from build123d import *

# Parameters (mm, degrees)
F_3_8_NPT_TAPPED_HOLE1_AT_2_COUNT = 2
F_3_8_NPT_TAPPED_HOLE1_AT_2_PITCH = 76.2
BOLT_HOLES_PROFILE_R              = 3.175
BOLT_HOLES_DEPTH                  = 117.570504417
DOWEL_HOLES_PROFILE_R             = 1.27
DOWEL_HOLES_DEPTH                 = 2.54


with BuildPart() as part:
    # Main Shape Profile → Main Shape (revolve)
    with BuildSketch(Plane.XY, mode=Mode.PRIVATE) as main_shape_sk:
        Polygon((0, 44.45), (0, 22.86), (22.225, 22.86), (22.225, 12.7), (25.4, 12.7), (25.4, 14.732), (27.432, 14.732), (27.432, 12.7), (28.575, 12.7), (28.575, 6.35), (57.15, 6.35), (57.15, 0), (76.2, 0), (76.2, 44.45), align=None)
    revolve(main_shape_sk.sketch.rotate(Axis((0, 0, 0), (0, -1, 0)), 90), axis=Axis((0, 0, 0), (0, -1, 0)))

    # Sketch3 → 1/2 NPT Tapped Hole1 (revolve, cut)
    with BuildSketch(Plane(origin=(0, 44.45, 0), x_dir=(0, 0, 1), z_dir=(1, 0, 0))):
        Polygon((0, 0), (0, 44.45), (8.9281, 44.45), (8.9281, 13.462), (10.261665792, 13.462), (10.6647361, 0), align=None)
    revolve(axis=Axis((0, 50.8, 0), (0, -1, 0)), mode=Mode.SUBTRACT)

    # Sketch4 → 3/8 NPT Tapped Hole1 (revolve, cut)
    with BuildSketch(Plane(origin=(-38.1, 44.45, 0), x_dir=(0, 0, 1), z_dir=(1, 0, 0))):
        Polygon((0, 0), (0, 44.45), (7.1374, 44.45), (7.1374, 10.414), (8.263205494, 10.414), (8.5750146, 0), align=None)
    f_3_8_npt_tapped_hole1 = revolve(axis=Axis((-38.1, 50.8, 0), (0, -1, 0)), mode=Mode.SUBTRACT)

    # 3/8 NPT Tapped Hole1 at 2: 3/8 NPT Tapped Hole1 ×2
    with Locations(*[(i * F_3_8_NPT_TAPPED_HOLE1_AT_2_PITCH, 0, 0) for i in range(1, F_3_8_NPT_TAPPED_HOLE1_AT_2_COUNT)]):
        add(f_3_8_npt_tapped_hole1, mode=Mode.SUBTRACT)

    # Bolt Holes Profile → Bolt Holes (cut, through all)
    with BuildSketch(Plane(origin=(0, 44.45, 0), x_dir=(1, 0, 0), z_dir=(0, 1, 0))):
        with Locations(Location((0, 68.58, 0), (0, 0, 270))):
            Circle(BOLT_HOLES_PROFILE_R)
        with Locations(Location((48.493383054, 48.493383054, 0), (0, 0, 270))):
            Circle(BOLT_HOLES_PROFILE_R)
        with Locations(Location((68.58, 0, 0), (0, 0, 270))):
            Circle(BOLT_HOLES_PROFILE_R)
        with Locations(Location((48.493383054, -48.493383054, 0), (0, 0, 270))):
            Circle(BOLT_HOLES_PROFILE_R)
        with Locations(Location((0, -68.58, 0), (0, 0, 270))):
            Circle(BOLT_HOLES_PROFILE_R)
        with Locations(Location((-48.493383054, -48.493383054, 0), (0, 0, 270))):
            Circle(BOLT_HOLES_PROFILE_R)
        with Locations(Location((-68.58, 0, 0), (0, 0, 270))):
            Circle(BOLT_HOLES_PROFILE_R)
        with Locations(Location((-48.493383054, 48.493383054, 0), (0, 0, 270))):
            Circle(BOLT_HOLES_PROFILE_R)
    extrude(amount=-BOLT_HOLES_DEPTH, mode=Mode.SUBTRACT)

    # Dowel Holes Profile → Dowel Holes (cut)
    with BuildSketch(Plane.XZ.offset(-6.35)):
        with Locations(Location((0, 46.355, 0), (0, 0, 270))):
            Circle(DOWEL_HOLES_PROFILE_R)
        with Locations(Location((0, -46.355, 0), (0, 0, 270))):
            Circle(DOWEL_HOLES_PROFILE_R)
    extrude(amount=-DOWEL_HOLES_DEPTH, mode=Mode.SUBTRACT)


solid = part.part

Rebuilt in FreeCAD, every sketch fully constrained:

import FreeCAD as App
import Part
import Sketcher
from FreeCAD import Vector
Q = App.Units.Quantity

doc = App.newDocument("Part")
body = doc.addObject("PartDesign::Body", "Body")

# Sketch on XY plane
sketch1 = body.newObject("Sketcher::SketchObject", "Sketch")
sketch1.AttachmentSupport = (doc.getObject("XY_Plane"), [""])
sketch1.MapMode = "FlatFace"
sketch1.addGeometry([
    Part.LineSegment(Vector(0, 44.5, 0), Vector(0, 22.9, 0)),  # 0
    Part.LineSegment(Vector(0, 22.9, 0), Vector(22.2, 22.9, 0)),  # 1
    Part.LineSegment(Vector(22.2, 22.9, 0), Vector(22.2, 12.7, 0)),  # 2
    Part.LineSegment(Vector(22.2, 12.7, 0), Vector(25.4, 12.7, 0)),  # 3
    Part.LineSegment(Vector(25.4, 12.7, 0), Vector(25.4, 14.7, 0)),  # 4
    Part.LineSegment(Vector(25.4, 14.7, 0), Vector(27.4, 14.7, 0)),  # 5
    Part.LineSegment(Vector(27.4, 14.7, 0), Vector(27.4, 12.7, 0)),  # 6
    Part.LineSegment(Vector(27.4, 12.7, 0), Vector(28.6, 12.7, 0)),  # 7
    Part.LineSegment(Vector(28.6, 12.7, 0), Vector(28.6, 6.3, 0)),  # 8
    Part.LineSegment(Vector(28.6, 6.3, 0), Vector(57.1, 6.3, 0)),  # 9
    Part.LineSegment(Vector(57.1, 6.3, 0), Vector(57.1, 0, 0)),  # 10
    Part.LineSegment(Vector(57.1, 0, 0), Vector(76.2, 0, 0)),  # 11
    Part.LineSegment(Vector(76.2, 0, 0), Vector(76.2, 44.5, 0)),  # 12
    Part.LineSegment(Vector(76.2, 44.5, 0), Vector(0, 44.5, 0)),  # 13
], False)
sketch1.addConstraint([
    Sketcher.Constraint("Coincident", 0, 2, 1, 1),
    Sketcher.Constraint("Coincident", 1, 2, 2, 1),
    Sketcher.Constraint("Coincident", 2, 2, 3, 1),
    Sketcher.Constraint("Coincident", 3, 2, 4, 1),
    Sketcher.Constraint("Coincident", 4, 2, 5, 1),
    Sketcher.Constraint("Coincident", 5, 2, 6, 1),
    Sketcher.Constraint("Coincident", 6, 2, 7, 1),
    Sketcher.Constraint("Coincident", 7, 2, 8, 1),
    Sketcher.Constraint("Coincident", 8, 2, 9, 1),
    Sketcher.Constraint("Coincident", 9, 2, 10, 1),
    Sketcher.Constraint("Coincident", 10, 2, 11, 1),
    Sketcher.Constraint("Coincident", 11, 2, 12, 1),
    Sketcher.Constraint("Coincident", 12, 2, 13, 1),
    Sketcher.Constraint("Coincident", 13, 2, 0, 1),
    Sketcher.Constraint("Vertical", 0),
    Sketcher.Constraint("Horizontal", 1),
    Sketcher.Constraint("Vertical", 2),
    Sketcher.Constraint("Horizontal", 3),
    Sketcher.Constraint("Vertical", 4),
    Sketcher.Constraint("Horizontal", 5),
    Sketcher.Constraint("Vertical", 6),
    Sketcher.Constraint("Horizontal", 7),
    Sketcher.Constraint("Vertical", 8),
    Sketcher.Constraint("Horizontal", 9),
    Sketcher.Constraint("Vertical", 10),
    Sketcher.Constraint("Horizontal", 11),
    Sketcher.Constraint("Vertical", 12),
    Sketcher.Constraint("Horizontal", 13),
    Sketcher.Constraint("PointOnObject", 0, 2, -2),
    Sketcher.Constraint("PointOnObject", 10, 2, -1),
    Sketcher.Constraint("Horizontal", 3, 2, 6, 2),
    Sketcher.Constraint("Equal", 5, 4),
    Sketcher.Constraint("Equal", 8, 10),
    Sketcher.Constraint("DistanceX", 13, 2, 13, 1, Q("3 in")),
    Sketcher.Constraint("DistanceY", 2, 2, 2, 1, Q("0.4 in")),
    Sketcher.Constraint("DistanceX", -1, 1, 3, 2, Q("1 in")),
    Sketcher.Constraint("DistanceX", 5, 1, 5, 2, Q("0.08 in")),
    Sketcher.Constraint("DistanceX", 11, 1, 11, 2, Q("0.75 in")),
    Sketcher.Constraint("DistanceY", 0, 2, 0, 1, Q("0.85 in")),
    Sketcher.Constraint("DistanceY", 8, 2, 8, 1, Q("0.25 in")),
    Sketcher.Constraint("DistanceX", 1, 1, 1, 2, Q("0.875 in")),
    Sketcher.Constraint("DistanceX", 7, 1, 7, 2, Q("0.045 in")),
])
revolution = body.newObject("PartDesign::Revolution", "Revolution")
revolution.Profile = sketch1
revolution.ReferenceAxis = (sketch1, ["V_Axis"])
revolution.Angle = 360

# Sketch on YZ plane
sketch2 = body.newObject("Sketcher::SketchObject", "Sketch001")
sketch2.AttachmentSupport = (doc.getObject("YZ_Plane"), [""])
sketch2.MapMode = "FlatFace"
sketch2.addGeometry([
    Part.LineSegment(Vector(0, 0, 0), Vector(44.5, 0, 0)),  # 0
    Part.LineSegment(Vector(44.5, 0, 0), Vector(44.5, 10.7, 0)),  # 1
    Part.LineSegment(Vector(44.5, 10.7, 0), Vector(31, 10.3, 0)),  # 2
    Part.LineSegment(Vector(31, 10.3, 0), Vector(31, 8.9, 0)),  # 3
    Part.LineSegment(Vector(31, 8.9, 0), Vector(0, 8.9, 0)),  # 4
    Part.LineSegment(Vector(0, 8.9, 0), Vector(0, 0, 0)),  # 5
], False)
sketch2.addConstraint([
    Sketcher.Constraint("Coincident", 0, 2, 1, 1),
    Sketcher.Constraint("Coincident", 1, 2, 2, 1),
    Sketcher.Constraint("Coincident", 2, 2, 3, 1),
    Sketcher.Constraint("Coincident", 3, 2, 4, 1),
    Sketcher.Constraint("Coincident", 4, 2, 5, 1),
    Sketcher.Constraint("Coincident", 5, 2, 0, 1),
    Sketcher.Constraint("Horizontal", 0),
    Sketcher.Constraint("Vertical", 1),
    Sketcher.Constraint("Vertical", 3),
    Sketcher.Constraint("Horizontal", 4),
    Sketcher.Constraint("Vertical", 5),
    Sketcher.Constraint("Coincident", 5, 2, -1, 1),
    Sketcher.Constraint("DistanceX", 0, 1, 0, 2, Q("1.75 in")),
    Sketcher.Constraint("DistanceX", 4, 2, 4, 1, Q("1.22 in")),
    Sketcher.Constraint("DistanceY", 5, 2, 5, 1, Q("0.3515 in")),
    Sketcher.Constraint("DistanceY", 1, 1, 1, 2, 10.664736),
    Sketcher.Constraint("DistanceY", 3, 2, 3, 1, 1.333566),
])
groove = body.newObject("PartDesign::Groove", "Groove")
groove.Profile = sketch2
groove.ReferenceAxis = (sketch2, ["H_Axis"])
groove.Angle = 360

# Sketch on YZ plane
sketch3 = body.newObject("Sketcher::SketchObject", "Sketch002")
sketch3.AttachmentSupport = (doc.getObject("YZ_Plane"), [""])
sketch3.MapMode = "FlatFace"
sketch3.AttachmentOffset = App.Placement(Vector(0, 0, -1.5 * 25.4), App.Rotation())
sketch3.addGeometry([
    Part.LineSegment(Vector(0, 0, 0), Vector(44.5, 0, 0)),  # 0
    Part.LineSegment(Vector(44.5, 0, 0), Vector(44.5, 8.6, 0)),  # 1
    Part.LineSegment(Vector(44.5, 8.6, 0), Vector(34, 8.3, 0)),  # 2
    Part.LineSegment(Vector(34, 8.3, 0), Vector(34, 7.1, 0)),  # 3
    Part.LineSegment(Vector(34, 7.1, 0), Vector(0, 7.1, 0)),  # 4
    Part.LineSegment(Vector(0, 7.1, 0), Vector(0, 0, 0)),  # 5
], False)
sketch3.addConstraint([
    Sketcher.Constraint("Coincident", 0, 2, 1, 1),
    Sketcher.Constraint("Coincident", 1, 2, 2, 1),
    Sketcher.Constraint("Coincident", 2, 2, 3, 1),
    Sketcher.Constraint("Coincident", 3, 2, 4, 1),
    Sketcher.Constraint("Coincident", 4, 2, 5, 1),
    Sketcher.Constraint("Coincident", 5, 2, 0, 1),
    Sketcher.Constraint("Horizontal", 0),
    Sketcher.Constraint("Vertical", 1),
    Sketcher.Constraint("Vertical", 3),
    Sketcher.Constraint("Horizontal", 4),
    Sketcher.Constraint("Vertical", 5),
    Sketcher.Constraint("Coincident", 5, 2, -1, 1),
    Sketcher.Constraint("DistanceX", 0, 1, 0, 2, Q("1.75 in")),
    Sketcher.Constraint("DistanceX", 4, 2, 4, 1, Q("1.34 in")),
    Sketcher.Constraint("DistanceY", 5, 2, 5, 1, Q("0.281 in")),
    Sketcher.Constraint("DistanceY", 1, 1, 1, 2, 8.575015),
    Sketcher.Constraint("DistanceY", 3, 2, 3, 1, 1.125805),
])
groove2 = body.newObject("PartDesign::Groove", "Groove001")
groove2.Profile = sketch3
groove2.ReferenceAxis = (sketch3, ["H_Axis"])
groove2.Angle = 360
doc.recompute()

linearpattern = body.newObject("PartDesign::LinearPattern", "LinearPattern")
linearpattern.Originals = [groove2]
linearpattern.Direction = (doc.getObject("X_Axis"), [""])
linearpattern.Mode = "offset"
linearpattern.Offset = Q("3 in")
linearpattern.Occurrences = 2
body.Tip = linearpattern

# Sketch on XZ plane
sketch4 = body.newObject("Sketcher::SketchObject", "Sketch003")
sketch4.AttachmentSupport = (doc.getObject("XZ_Plane"), [""])
sketch4.MapMode = "FlatFace"
sketch4.AttachmentOffset = App.Placement(Vector(0, 0, -1.75 * 25.4), App.Rotation())
sketch4.addGeometry([
    Part.Circle(Vector(0, -68.6, 0), Vector(0, 0, 1), 3.2),  # 0
    Part.Circle(Vector(48.5, -48.5, 0), Vector(0, 0, 1), 3.2),  # 1
    Part.Circle(Vector(68.6, 0, 0), Vector(0, 0, 1), 3.2),  # 2
    Part.Circle(Vector(48.5, 48.5, 0), Vector(0, 0, 1), 3.2),  # 3
    Part.Circle(Vector(0, 68.6, 0), Vector(0, 0, 1), 3.2),  # 4
    Part.Circle(Vector(-48.5, 48.5, 0), Vector(0, 0, 1), 3.2),  # 5
    Part.Circle(Vector(-68.6, 0, 0), Vector(0, 0, 1), 3.2),  # 6
    Part.Circle(Vector(-48.5, -48.5, 0), Vector(0, 0, 1), 3.2),  # 7
], False)
sketch4.addConstraint([
    Sketcher.Constraint("Equal", 0, 1),
    Sketcher.Constraint("Equal", 1, 2),
    Sketcher.Constraint("Equal", 2, 3),
    Sketcher.Constraint("Equal", 3, 4),
    Sketcher.Constraint("Equal", 4, 5),
    Sketcher.Constraint("Equal", 5, 6),
    Sketcher.Constraint("Equal", 6, 7),
    Sketcher.Constraint("Symmetric", 0, 3, 4, 3, -1, 1),
    Sketcher.Constraint("Symmetric", 1, 3, 5, 3, -1, 1),
    Sketcher.Constraint("Symmetric", 2, 3, 6, 3, -1, 1),
    Sketcher.Constraint("Symmetric", 3, 3, 7, 3, -1, 1),
    Sketcher.Constraint("Symmetric", 3, 3, 5, 3, -2),
    Sketcher.Constraint("PointOnObject", 0, 3, -2),
    Sketcher.Constraint("PointOnObject", 2, 3, -1),
    Sketcher.Constraint("Diameter", 0, Q("0.25 in")),
    Sketcher.Constraint("DistanceY", 0, 3, -1, 1, Q("2.7 in")),
    Sketcher.Constraint("DistanceX", -1, 1, 2, 3, Q("2.7 in")),
    Sketcher.Constraint("DistanceX", -1, 1, 1, 3, 48.493383),
    Sketcher.Constraint("DistanceY", 1, 3, -1, 1, 48.493383),
])
pocket1 = body.newObject("PartDesign::Pocket", "Pocket")
pocket1.Profile = sketch4
pocket1.Type = "ThroughAll"
pocket1.Reversed = True

# Sketch on XZ plane
sketch5 = body.newObject("Sketcher::SketchObject", "Sketch004")
sketch5.AttachmentSupport = (doc.getObject("XZ_Plane"), [""])
sketch5.MapMode = "FlatFace"
sketch5.AttachmentOffset = App.Placement(Vector(0, 0, -0.25 * 25.4), App.Rotation())
sketch5.addGeometry([
    Part.Circle(Vector(0, 46.4, 0), Vector(0, 0, 1), 1.3),
    Part.Circle(Vector(0, -46.4, 0), Vector(0, 0, 1), 1.3),
], False)
sketch5.addConstraint([
    Sketcher.Constraint("Equal", 0, 1),
    Sketcher.Constraint("Symmetric", 0, 3, 1, 3, -1, 1),
    Sketcher.Constraint("PointOnObject", 0, 3, -2),
    Sketcher.Constraint("Diameter", 0, Q("0.1 in")),
    Sketcher.Constraint("DistanceY", 1, 3, 0, 3, Q("3.65 in")),
])
pocket2 = body.newObject("PartDesign::Pocket", "Pocket001")
pocket2.Profile = sketch5
pocket2.Length = Q("0.1 in")

doc.recompute()
